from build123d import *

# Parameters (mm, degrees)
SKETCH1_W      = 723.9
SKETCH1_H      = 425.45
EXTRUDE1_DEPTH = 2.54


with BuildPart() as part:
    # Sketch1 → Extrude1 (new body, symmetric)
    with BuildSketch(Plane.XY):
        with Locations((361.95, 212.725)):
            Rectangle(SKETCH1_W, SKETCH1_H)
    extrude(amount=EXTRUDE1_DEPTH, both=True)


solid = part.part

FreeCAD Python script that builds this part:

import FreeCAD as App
import Part
import Sketcher
Q = App.Units.Quantity


def add_polygon(sketch, points):
    """Adds a closed chain of lines whose ends are joined by coincident constraints."""
    first, n = sketch.GeometryCount, len(points)
    for a, b in zip(points, points[1:] + points[:1]):
        sketch.addGeometry(Part.LineSegment(App.Vector(*a, 0), App.Vector(*b, 0)), False)
    for i in range(n):
        sketch.addConstraint(Sketcher.Constraint("Coincident", first + i, 2, first + (i + 1) % n, 1))

doc = App.newDocument("Part")
body = doc.addObject("PartDesign::Body", "Body")

# Sketch on XY plane
sketch1 = body.newObject("Sketcher::SketchObject", "Sketch")
sketch1.AttachmentSupport = (doc.getObject("XY_Plane"), [""])
sketch1.MapMode = "FlatFace"
add_polygon(sketch1, [(0, 425.45), (0, 0), (723.9, 0), (723.9, 425.45)])  # lines 0-3
sketch1.addConstraint(Sketcher.Constraint("Vertical", 0))
sketch1.addConstraint(Sketcher.Constraint("Horizontal", 1))
sketch1.addConstraint(Sketcher.Constraint("Vertical", 2))
sketch1.addConstraint(Sketcher.Constraint("Horizontal", 3))
sketch1.addConstraint(Sketcher.Constraint("Coincident", 0, 2, -1, 1))
sketch1.addConstraint(Sketcher.Constraint("DistanceX", 1, 1, 1, 2, Q("28.5 in")))
sketch1.addConstraint(Sketcher.Constraint("DistanceY", 0, 2, 0, 1, Q("16.75 in")))
pad1 = body.newObject("PartDesign::Pad", "Pad")
pad1.Profile = sketch1
pad1.Length = Q("0.2 in")
pad1.Midplane = True

doc.recompute()
